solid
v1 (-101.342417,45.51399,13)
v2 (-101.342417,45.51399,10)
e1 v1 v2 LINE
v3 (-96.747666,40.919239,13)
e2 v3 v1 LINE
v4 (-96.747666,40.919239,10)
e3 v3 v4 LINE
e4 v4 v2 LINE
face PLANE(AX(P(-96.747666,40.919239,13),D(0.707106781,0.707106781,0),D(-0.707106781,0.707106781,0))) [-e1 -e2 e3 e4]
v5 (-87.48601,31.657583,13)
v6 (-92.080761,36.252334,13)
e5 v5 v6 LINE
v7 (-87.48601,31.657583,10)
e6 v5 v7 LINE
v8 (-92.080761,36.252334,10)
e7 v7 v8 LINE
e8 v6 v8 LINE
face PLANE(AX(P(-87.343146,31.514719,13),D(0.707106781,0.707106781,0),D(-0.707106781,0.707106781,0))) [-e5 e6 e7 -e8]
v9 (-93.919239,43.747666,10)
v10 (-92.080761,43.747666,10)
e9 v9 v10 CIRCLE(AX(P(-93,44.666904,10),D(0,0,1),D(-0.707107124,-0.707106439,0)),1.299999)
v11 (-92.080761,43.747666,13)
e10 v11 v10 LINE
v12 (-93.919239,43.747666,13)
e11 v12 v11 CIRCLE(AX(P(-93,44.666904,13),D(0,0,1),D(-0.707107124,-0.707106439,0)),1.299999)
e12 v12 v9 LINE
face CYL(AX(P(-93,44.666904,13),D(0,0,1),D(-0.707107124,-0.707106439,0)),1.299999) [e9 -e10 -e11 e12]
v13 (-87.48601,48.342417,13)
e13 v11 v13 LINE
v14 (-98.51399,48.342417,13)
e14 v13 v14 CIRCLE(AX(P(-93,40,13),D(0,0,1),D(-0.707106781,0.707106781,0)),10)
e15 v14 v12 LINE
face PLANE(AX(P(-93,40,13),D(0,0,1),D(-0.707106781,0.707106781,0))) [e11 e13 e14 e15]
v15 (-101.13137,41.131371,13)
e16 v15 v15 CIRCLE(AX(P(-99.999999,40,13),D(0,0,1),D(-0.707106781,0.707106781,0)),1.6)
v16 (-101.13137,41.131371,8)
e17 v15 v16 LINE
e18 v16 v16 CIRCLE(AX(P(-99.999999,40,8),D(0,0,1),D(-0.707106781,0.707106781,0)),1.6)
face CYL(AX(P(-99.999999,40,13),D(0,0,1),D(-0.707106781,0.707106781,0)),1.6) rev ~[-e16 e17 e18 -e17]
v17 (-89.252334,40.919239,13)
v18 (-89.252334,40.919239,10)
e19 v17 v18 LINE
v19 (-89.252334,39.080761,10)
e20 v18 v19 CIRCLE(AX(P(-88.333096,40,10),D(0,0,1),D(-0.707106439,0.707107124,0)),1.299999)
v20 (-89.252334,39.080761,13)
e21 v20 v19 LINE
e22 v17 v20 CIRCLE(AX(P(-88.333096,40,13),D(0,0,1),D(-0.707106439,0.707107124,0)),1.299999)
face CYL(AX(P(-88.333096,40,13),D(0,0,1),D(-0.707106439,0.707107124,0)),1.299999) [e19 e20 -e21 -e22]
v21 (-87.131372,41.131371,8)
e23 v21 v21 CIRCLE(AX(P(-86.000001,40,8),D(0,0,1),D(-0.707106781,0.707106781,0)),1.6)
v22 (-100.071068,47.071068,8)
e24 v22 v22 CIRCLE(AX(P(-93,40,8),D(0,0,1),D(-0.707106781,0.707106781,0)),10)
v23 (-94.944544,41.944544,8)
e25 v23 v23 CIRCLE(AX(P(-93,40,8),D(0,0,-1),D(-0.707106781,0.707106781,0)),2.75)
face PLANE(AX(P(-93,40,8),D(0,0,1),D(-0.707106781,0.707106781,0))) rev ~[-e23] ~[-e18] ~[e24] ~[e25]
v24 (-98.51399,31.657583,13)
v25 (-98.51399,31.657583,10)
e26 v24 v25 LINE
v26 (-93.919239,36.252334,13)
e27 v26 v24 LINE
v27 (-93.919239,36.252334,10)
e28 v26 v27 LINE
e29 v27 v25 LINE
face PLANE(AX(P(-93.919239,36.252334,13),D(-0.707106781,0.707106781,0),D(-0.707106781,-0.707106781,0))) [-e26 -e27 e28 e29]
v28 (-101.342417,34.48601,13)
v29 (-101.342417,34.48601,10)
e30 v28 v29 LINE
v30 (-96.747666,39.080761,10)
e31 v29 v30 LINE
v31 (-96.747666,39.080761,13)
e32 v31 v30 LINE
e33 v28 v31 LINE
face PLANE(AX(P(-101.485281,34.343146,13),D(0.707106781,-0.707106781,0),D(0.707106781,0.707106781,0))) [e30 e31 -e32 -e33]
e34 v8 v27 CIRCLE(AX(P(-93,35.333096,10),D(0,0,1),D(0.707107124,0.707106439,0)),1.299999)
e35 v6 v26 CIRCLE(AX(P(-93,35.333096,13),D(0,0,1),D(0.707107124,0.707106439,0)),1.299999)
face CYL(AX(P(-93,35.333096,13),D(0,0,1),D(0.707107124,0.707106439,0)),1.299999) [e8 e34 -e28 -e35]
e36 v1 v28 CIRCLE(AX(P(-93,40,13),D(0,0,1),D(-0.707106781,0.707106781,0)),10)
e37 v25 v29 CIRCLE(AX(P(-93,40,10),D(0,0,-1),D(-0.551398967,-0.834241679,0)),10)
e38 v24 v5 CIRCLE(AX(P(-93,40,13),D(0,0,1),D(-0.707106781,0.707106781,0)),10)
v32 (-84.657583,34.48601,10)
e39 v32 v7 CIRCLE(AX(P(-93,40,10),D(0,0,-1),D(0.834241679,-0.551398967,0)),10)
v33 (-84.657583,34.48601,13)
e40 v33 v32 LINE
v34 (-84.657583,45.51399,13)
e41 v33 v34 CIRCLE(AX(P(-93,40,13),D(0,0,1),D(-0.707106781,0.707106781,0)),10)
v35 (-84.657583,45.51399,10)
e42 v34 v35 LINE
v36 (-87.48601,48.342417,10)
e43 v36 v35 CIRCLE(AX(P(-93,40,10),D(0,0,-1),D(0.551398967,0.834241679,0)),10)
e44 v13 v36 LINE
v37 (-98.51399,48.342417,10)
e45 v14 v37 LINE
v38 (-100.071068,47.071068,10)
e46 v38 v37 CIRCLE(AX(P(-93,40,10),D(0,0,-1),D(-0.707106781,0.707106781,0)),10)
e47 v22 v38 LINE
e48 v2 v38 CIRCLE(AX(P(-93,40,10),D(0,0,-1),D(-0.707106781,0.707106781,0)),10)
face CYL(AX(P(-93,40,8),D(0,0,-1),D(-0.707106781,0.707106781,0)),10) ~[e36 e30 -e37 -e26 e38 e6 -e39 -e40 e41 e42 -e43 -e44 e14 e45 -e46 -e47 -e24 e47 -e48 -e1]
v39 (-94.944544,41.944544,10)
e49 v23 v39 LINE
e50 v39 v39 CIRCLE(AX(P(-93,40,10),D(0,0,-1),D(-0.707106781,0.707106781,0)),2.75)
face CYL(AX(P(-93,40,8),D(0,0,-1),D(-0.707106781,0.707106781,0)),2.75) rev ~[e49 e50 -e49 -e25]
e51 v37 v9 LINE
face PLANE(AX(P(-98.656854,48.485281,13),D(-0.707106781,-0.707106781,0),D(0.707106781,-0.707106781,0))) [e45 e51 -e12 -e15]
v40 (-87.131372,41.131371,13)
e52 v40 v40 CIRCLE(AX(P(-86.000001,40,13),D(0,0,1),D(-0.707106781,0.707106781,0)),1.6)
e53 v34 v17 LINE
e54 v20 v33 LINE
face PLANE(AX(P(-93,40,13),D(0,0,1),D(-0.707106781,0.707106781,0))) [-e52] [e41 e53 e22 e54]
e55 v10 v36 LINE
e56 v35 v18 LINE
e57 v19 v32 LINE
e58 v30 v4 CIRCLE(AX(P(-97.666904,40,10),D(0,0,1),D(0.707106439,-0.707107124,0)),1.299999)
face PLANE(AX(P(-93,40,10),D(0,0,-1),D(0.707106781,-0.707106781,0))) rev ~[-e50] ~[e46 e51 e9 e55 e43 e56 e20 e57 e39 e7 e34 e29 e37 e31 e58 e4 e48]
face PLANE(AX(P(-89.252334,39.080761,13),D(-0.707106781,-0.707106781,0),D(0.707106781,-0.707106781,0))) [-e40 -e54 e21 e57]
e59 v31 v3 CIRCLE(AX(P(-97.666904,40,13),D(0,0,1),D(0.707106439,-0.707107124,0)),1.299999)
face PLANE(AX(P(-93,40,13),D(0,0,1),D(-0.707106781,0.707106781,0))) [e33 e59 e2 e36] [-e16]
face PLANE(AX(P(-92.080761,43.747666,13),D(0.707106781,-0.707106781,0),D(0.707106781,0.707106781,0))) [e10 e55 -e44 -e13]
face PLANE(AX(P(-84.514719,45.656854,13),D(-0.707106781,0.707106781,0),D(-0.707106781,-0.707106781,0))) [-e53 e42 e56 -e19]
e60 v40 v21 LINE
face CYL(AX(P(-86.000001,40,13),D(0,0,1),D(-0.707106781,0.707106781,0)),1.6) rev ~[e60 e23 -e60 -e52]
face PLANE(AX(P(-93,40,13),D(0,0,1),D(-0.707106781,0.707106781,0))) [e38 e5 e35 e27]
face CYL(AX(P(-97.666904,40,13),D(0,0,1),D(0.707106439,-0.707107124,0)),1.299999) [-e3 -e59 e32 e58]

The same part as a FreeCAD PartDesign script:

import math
import FreeCAD as App
import Part
import Sketcher

V = App.Vector
Q = App.Units.Quantity

doc = App.newDocument("Part")
params = doc.addObject("Spreadsheet::Sheet", "Params")
for row, (alias, value) in enumerate([
    ("sketch1_diameter", "20 mm"),
    ("pad1_length", "5 mm"),
    ("sketch2_radius", "1.299999 mm"),
    ("sketch2_width", "4 mm"),
    ("sketch2_width2", "6.7 mm"),
    ("pocket1_length", "3 mm"),
    ("sketch3_diameter", "5.5 mm"),
    ("sketch4_diameter", "3.2 mm"),
], start=1):
    params.set(f"A{row}", alias)
    params.set(f"B{row}", "=" + value)
    params.setAlias(f"B{row}", alias)

body = doc.addObject("PartDesign::Body", "Body")

# Sketch on XY plane
sketch1 = doc.addObject("Sketcher::SketchObject", "Sketch")
body.addObject(sketch1)
sketch1.AttachmentSupport = (doc.XY_Plane, [""])
sketch1.MapMode = "FlatFace"
sketch1.addGeometry(Part.Circle(V(0, 0, 0), V(0, 0, 1), 10), False)
sketch1.addConstraint(Sketcher.Constraint("Coincident", 0, 3, -1, 1))
sketch1.addConstraint(Sketcher.Constraint("Diameter", 0, Q("20 mm")))
sketch1.setExpression("Constraints[1]", "Params.sketch1_diameter")
pad1 = doc.addObject("PartDesign::Pad", "Pad")
body.addObject(pad1)
pad1.Profile = sketch1
pad1.setExpression("Length", "Params.pad1_length")

# Sketch on XY plane
sketch2 = doc.addObject("Sketcher::SketchObject", "Sketch001")
body.addObject(sketch2)
sketch2.AttachmentSupport = (doc.XY_Plane, [""])
sketch2.MapMode = "FlatFace"
sketch2.AttachmentOffset = App.Placement(V(0, 0, 5), App.Rotation())
sketch2.addGeometry(Part.LineSegment(V(2, 10, 0), V(-2, 10, 0)), False)
sketch2.addGeometry(Part.LineSegment(V(-2, 10, 0), V(-2, 3.3, 0)), False)
sketch2.addGeometry(Part.ArcOfCircle(Part.Circle(V(-3.3, 3.3, 0), V(0, 0, 1), 1.3), math.radians(-90), math.radians(0)), False)
sketch2.addGeometry(Part.LineSegment(V(-3.3, 2, 0), V(-10, 2, 0)), False)
sketch2.addGeometry(Part.LineSegment(V(-10, 2, 0), V(-10, -2, 0)), False)
sketch2.addGeometry(Part.LineSegment(V(-10, -2, 0), V(-3.3, -2, 0)), False)
sketch2.addGeometry(Part.ArcOfCircle(Part.Circle(V(-3.3, -3.3, 0), V(0, 0, 1), 1.3), math.radians(0), math.radians(90)), False)
sketch2.addGeometry(Part.LineSegment(V(-2, -3.3, 0), V(-2, -10, 0)), False)
sketch2.addGeometry(Part.LineSegment(V(-2, -10, 0), V(2, -10, 0)), False)
sketch2.addGeometry(Part.LineSegment(V(2, -10, 0), V(2, -3.3, 0)), False)
sketch2.addGeometry(Part.ArcOfCircle(Part.Circle(V(3.3, -3.3, 0), V(0, 0, 1), 1.3), math.radians(90), math.radians(180)), False)
sketch2.addGeometry(Part.LineSegment(V(3.3, -2, 0), V(10, -2, 0)), False)
sketch2.addGeometry(Part.LineSegment(V(10, -2, 0), V(10, 2, 0)), False)
sketch2.addGeometry(Part.LineSegment(V(10, 2, 0), V(3.3, 2, 0)), False)
sketch2.addGeometry(Part.ArcOfCircle(Part.Circle(V(3.3, 3.3, 0), V(0, 0, 1), 1.3), math.radians(180), math.radians(270)), False)
sketch2.addGeometry(Part.LineSegment(V(2, 3.3, 0), V(2, 10, 0)), False)
sketch2.addConstraint(Sketcher.Constraint("Coincident", 0, 2, 1, 1))
sketch2.addConstraint(Sketcher.Constraint("Tangent", 1, 2, 2, 2))
sketch2.addConstraint(Sketcher.Constraint("Tangent", 2, 1, 3, 1))
sketch2.addConstraint(Sketcher.Constraint("Coincident", 3, 2, 4, 1))
sketch2.addConstraint(Sketcher.Constraint("Coincident", 4, 2, 5, 1))
sketch2.addConstraint(Sketcher.Constraint("Tangent", 5, 2, 6, 2))
sketch2.addConstraint(Sketcher.Constraint("Tangent", 6, 1, 7, 1))
sketch2.addConstraint(Sketcher.Constraint("Coincident", 7, 2, 8, 1))
sketch2.addConstraint(Sketcher.Constraint("Coincident", 8, 2, 9, 1))
sketch2.addConstraint(Sketcher.Constraint("Tangent", 9, 2, 10, 2))
sketch2.addConstraint(Sketcher.Constraint("Tangent", 10, 1, 11, 1))
sketch2.addConstraint(Sketcher.Constraint("Coincident", 11, 2, 12, 1))
sketch2.addConstraint(Sketcher.Constraint("Coincident", 12, 2, 13, 1))
sketch2.addConstraint(Sketcher.Constraint("Tangent", 13, 2, 14, 2))
sketch2.addConstraint(Sketcher.Constraint("Tangent", 14, 1, 15, 1))
sketch2.addConstraint(Sketcher.Constraint("Coincident", 15, 2, 0, 1))
sketch2.addConstraint(Sketcher.Constraint("Horizontal", 0))
sketch2.addConstraint(Sketcher.Constraint("Vertical", 1))
sketch2.addConstraint(Sketcher.Constraint("Horizontal", 3))
sketch2.addConstraint(Sketcher.Constraint("Vertical", 4))
sketch2.addConstraint(Sketcher.Constraint("Horizontal", 5))
sketch2.addConstraint(Sketcher.Constraint("Vertical", 7))
sketch2.addConstraint(Sketcher.Constraint("Horizontal", 8))
sketch2.addConstraint(Sketcher.Constraint("Vertical", 9))
sketch2.addConstraint(Sketcher.Constraint("Horizontal", 11))
sketch2.addConstraint(Sketcher.Constraint("Vertical", 12))
sketch2.addConstraint(Sketcher.Constraint("Horizontal", 13))
sketch2.addConstraint(Sketcher.Constraint("Vertical", 15))
sketch2.addConstraint(Sketcher.Constraint("Equal", 2, 6))
sketch2.addConstraint(Sketcher.Constraint("Equal", 6, 10))
sketch2.addConstraint(Sketcher.Constraint("Equal", 10, 14))
sketch2.addConstraint(Sketcher.Constraint("Symmetric", 2, 3, 10, 3, -1, 1))
sketch2.addConstraint(Sketcher.Constraint("Symmetric", 6, 3, 14, 3, -1, 1))
sketch2.addConstraint(Sketcher.Constraint("Symmetric", 6, 3, 10, 3, -2))
sketch2.addConstraint(Sketcher.Constraint("Equal", 5, 11))
sketch2.addConstraint(Sketcher.Constraint("Equal", 13, 1))
sketch2.addConstraint(Sketcher.Constraint("Equal", 8, 4))
sketch2.addConstraint(Sketcher.Constraint("Equal", 1, 7))
sketch2.addConstraint(Sketcher.Constraint("Radius", 2, Q("1.299999 mm")))
sketch2.addConstraint(Sketcher.Constraint("DistanceX", 0, 2, 0, 1, Q("4 mm")))
sketch2.addConstraint(Sketcher.Constraint("DistanceX", 3, 2, 3, 1, Q("6.7 mm")))
sketch2.setExpression("Constraints[38]", "Params.sketch2_radius")
sketch2.setExpression("Constraints[39]", "Params.sketch2_width")
sketch2.setExpression("Constraints[40]", "Params.sketch2_width2")
pocket1 = doc.addObject("PartDesign::Pocket", "Pocket")
body.addObject(pocket1)
pocket1.Profile = sketch2
pocket1.setExpression("Length", "Params.pocket1_length")

# Sketch on XY plane
sketch3 = doc.addObject("Sketcher::SketchObject", "Sketch002")
body.addObject(sketch3)
sketch3.AttachmentSupport = (doc.XY_Plane, [""])
sketch3.MapMode = "FlatFace"
sketch3.addGeometry(Part.Circle(V(0, 0, 0), V(0, 0, 1), 2.8), False)
sketch3.addConstraint(Sketcher.Constraint("Coincident", 0, 3, -1, 1))
sketch3.addConstraint(Sketcher.Constraint("Diameter", 0, Q("5.5 mm")))
sketch3.setExpression("Constraints[1]", "Params.sketch3_diameter")
pocket2 = doc.addObject("PartDesign::Pocket", "Pocket001")
body.addObject(pocket2)
pocket2.Profile = sketch3
pocket2.Type = "ThroughAll"
pocket2.Reversed = True

# Sketch on XY plane
sketch4 = doc.addObject("Sketcher::SketchObject", "Sketch003")
body.addObject(sketch4)
sketch4.AttachmentSupport = (doc.XY_Plane, [""])
sketch4.MapMode = "FlatFace"
sketch4.AttachmentOffset = App.Placement(V(0, 0, 5), App.Rotation())
sketch4.addGeometry(Part.Circle(V(4.9, 4.9, 0), V(0, 0, 1), 1.6), False)
sketch4.addGeometry(Part.Circle(V(-4.9, -4.9, 0), V(0, 0, 1), 1.6), False)
sketch4.addConstraint(Sketcher.Constraint("Equal", 0, 1))
sketch4.addConstraint(Sketcher.Constraint("Symmetric", 0, 3, 1, 3, -1, 1))
sketch4.addConstraint(Sketcher.Constraint("Diameter", 0, Q("3.2 mm")))
sketch4.addConstraint(Sketcher.Constraint("DistanceX", -1, 1, 0, 3, Q("4.949747 mm")))
sketch4.addConstraint(Sketcher.Constraint("DistanceY", -1, 1, 0, 3, Q("4.949747 mm")))
sketch4.setExpression("Constraints[2]", "Params.sketch4_diameter")
pocket3 = doc.addObject("PartDesign::Pocket", "Pocket002")
body.addObject(pocket3)
pocket3.Profile = sketch4
pocket3.Type = "ThroughAll"
body2 = doc.addObject("PartDesign::Body", "Body001")
doc.recompute()

body.Placement = App.Placement(V(-93, 40, 8), App.Rotation(V(0, 0, 1), 135))
boolean = doc.addObject("PartDesign::Boolean", "Boolean")
body2.addObject(boolean)
boolean.Type = "Fuse"
boolean.addObjects([body])

doc.recompute()
